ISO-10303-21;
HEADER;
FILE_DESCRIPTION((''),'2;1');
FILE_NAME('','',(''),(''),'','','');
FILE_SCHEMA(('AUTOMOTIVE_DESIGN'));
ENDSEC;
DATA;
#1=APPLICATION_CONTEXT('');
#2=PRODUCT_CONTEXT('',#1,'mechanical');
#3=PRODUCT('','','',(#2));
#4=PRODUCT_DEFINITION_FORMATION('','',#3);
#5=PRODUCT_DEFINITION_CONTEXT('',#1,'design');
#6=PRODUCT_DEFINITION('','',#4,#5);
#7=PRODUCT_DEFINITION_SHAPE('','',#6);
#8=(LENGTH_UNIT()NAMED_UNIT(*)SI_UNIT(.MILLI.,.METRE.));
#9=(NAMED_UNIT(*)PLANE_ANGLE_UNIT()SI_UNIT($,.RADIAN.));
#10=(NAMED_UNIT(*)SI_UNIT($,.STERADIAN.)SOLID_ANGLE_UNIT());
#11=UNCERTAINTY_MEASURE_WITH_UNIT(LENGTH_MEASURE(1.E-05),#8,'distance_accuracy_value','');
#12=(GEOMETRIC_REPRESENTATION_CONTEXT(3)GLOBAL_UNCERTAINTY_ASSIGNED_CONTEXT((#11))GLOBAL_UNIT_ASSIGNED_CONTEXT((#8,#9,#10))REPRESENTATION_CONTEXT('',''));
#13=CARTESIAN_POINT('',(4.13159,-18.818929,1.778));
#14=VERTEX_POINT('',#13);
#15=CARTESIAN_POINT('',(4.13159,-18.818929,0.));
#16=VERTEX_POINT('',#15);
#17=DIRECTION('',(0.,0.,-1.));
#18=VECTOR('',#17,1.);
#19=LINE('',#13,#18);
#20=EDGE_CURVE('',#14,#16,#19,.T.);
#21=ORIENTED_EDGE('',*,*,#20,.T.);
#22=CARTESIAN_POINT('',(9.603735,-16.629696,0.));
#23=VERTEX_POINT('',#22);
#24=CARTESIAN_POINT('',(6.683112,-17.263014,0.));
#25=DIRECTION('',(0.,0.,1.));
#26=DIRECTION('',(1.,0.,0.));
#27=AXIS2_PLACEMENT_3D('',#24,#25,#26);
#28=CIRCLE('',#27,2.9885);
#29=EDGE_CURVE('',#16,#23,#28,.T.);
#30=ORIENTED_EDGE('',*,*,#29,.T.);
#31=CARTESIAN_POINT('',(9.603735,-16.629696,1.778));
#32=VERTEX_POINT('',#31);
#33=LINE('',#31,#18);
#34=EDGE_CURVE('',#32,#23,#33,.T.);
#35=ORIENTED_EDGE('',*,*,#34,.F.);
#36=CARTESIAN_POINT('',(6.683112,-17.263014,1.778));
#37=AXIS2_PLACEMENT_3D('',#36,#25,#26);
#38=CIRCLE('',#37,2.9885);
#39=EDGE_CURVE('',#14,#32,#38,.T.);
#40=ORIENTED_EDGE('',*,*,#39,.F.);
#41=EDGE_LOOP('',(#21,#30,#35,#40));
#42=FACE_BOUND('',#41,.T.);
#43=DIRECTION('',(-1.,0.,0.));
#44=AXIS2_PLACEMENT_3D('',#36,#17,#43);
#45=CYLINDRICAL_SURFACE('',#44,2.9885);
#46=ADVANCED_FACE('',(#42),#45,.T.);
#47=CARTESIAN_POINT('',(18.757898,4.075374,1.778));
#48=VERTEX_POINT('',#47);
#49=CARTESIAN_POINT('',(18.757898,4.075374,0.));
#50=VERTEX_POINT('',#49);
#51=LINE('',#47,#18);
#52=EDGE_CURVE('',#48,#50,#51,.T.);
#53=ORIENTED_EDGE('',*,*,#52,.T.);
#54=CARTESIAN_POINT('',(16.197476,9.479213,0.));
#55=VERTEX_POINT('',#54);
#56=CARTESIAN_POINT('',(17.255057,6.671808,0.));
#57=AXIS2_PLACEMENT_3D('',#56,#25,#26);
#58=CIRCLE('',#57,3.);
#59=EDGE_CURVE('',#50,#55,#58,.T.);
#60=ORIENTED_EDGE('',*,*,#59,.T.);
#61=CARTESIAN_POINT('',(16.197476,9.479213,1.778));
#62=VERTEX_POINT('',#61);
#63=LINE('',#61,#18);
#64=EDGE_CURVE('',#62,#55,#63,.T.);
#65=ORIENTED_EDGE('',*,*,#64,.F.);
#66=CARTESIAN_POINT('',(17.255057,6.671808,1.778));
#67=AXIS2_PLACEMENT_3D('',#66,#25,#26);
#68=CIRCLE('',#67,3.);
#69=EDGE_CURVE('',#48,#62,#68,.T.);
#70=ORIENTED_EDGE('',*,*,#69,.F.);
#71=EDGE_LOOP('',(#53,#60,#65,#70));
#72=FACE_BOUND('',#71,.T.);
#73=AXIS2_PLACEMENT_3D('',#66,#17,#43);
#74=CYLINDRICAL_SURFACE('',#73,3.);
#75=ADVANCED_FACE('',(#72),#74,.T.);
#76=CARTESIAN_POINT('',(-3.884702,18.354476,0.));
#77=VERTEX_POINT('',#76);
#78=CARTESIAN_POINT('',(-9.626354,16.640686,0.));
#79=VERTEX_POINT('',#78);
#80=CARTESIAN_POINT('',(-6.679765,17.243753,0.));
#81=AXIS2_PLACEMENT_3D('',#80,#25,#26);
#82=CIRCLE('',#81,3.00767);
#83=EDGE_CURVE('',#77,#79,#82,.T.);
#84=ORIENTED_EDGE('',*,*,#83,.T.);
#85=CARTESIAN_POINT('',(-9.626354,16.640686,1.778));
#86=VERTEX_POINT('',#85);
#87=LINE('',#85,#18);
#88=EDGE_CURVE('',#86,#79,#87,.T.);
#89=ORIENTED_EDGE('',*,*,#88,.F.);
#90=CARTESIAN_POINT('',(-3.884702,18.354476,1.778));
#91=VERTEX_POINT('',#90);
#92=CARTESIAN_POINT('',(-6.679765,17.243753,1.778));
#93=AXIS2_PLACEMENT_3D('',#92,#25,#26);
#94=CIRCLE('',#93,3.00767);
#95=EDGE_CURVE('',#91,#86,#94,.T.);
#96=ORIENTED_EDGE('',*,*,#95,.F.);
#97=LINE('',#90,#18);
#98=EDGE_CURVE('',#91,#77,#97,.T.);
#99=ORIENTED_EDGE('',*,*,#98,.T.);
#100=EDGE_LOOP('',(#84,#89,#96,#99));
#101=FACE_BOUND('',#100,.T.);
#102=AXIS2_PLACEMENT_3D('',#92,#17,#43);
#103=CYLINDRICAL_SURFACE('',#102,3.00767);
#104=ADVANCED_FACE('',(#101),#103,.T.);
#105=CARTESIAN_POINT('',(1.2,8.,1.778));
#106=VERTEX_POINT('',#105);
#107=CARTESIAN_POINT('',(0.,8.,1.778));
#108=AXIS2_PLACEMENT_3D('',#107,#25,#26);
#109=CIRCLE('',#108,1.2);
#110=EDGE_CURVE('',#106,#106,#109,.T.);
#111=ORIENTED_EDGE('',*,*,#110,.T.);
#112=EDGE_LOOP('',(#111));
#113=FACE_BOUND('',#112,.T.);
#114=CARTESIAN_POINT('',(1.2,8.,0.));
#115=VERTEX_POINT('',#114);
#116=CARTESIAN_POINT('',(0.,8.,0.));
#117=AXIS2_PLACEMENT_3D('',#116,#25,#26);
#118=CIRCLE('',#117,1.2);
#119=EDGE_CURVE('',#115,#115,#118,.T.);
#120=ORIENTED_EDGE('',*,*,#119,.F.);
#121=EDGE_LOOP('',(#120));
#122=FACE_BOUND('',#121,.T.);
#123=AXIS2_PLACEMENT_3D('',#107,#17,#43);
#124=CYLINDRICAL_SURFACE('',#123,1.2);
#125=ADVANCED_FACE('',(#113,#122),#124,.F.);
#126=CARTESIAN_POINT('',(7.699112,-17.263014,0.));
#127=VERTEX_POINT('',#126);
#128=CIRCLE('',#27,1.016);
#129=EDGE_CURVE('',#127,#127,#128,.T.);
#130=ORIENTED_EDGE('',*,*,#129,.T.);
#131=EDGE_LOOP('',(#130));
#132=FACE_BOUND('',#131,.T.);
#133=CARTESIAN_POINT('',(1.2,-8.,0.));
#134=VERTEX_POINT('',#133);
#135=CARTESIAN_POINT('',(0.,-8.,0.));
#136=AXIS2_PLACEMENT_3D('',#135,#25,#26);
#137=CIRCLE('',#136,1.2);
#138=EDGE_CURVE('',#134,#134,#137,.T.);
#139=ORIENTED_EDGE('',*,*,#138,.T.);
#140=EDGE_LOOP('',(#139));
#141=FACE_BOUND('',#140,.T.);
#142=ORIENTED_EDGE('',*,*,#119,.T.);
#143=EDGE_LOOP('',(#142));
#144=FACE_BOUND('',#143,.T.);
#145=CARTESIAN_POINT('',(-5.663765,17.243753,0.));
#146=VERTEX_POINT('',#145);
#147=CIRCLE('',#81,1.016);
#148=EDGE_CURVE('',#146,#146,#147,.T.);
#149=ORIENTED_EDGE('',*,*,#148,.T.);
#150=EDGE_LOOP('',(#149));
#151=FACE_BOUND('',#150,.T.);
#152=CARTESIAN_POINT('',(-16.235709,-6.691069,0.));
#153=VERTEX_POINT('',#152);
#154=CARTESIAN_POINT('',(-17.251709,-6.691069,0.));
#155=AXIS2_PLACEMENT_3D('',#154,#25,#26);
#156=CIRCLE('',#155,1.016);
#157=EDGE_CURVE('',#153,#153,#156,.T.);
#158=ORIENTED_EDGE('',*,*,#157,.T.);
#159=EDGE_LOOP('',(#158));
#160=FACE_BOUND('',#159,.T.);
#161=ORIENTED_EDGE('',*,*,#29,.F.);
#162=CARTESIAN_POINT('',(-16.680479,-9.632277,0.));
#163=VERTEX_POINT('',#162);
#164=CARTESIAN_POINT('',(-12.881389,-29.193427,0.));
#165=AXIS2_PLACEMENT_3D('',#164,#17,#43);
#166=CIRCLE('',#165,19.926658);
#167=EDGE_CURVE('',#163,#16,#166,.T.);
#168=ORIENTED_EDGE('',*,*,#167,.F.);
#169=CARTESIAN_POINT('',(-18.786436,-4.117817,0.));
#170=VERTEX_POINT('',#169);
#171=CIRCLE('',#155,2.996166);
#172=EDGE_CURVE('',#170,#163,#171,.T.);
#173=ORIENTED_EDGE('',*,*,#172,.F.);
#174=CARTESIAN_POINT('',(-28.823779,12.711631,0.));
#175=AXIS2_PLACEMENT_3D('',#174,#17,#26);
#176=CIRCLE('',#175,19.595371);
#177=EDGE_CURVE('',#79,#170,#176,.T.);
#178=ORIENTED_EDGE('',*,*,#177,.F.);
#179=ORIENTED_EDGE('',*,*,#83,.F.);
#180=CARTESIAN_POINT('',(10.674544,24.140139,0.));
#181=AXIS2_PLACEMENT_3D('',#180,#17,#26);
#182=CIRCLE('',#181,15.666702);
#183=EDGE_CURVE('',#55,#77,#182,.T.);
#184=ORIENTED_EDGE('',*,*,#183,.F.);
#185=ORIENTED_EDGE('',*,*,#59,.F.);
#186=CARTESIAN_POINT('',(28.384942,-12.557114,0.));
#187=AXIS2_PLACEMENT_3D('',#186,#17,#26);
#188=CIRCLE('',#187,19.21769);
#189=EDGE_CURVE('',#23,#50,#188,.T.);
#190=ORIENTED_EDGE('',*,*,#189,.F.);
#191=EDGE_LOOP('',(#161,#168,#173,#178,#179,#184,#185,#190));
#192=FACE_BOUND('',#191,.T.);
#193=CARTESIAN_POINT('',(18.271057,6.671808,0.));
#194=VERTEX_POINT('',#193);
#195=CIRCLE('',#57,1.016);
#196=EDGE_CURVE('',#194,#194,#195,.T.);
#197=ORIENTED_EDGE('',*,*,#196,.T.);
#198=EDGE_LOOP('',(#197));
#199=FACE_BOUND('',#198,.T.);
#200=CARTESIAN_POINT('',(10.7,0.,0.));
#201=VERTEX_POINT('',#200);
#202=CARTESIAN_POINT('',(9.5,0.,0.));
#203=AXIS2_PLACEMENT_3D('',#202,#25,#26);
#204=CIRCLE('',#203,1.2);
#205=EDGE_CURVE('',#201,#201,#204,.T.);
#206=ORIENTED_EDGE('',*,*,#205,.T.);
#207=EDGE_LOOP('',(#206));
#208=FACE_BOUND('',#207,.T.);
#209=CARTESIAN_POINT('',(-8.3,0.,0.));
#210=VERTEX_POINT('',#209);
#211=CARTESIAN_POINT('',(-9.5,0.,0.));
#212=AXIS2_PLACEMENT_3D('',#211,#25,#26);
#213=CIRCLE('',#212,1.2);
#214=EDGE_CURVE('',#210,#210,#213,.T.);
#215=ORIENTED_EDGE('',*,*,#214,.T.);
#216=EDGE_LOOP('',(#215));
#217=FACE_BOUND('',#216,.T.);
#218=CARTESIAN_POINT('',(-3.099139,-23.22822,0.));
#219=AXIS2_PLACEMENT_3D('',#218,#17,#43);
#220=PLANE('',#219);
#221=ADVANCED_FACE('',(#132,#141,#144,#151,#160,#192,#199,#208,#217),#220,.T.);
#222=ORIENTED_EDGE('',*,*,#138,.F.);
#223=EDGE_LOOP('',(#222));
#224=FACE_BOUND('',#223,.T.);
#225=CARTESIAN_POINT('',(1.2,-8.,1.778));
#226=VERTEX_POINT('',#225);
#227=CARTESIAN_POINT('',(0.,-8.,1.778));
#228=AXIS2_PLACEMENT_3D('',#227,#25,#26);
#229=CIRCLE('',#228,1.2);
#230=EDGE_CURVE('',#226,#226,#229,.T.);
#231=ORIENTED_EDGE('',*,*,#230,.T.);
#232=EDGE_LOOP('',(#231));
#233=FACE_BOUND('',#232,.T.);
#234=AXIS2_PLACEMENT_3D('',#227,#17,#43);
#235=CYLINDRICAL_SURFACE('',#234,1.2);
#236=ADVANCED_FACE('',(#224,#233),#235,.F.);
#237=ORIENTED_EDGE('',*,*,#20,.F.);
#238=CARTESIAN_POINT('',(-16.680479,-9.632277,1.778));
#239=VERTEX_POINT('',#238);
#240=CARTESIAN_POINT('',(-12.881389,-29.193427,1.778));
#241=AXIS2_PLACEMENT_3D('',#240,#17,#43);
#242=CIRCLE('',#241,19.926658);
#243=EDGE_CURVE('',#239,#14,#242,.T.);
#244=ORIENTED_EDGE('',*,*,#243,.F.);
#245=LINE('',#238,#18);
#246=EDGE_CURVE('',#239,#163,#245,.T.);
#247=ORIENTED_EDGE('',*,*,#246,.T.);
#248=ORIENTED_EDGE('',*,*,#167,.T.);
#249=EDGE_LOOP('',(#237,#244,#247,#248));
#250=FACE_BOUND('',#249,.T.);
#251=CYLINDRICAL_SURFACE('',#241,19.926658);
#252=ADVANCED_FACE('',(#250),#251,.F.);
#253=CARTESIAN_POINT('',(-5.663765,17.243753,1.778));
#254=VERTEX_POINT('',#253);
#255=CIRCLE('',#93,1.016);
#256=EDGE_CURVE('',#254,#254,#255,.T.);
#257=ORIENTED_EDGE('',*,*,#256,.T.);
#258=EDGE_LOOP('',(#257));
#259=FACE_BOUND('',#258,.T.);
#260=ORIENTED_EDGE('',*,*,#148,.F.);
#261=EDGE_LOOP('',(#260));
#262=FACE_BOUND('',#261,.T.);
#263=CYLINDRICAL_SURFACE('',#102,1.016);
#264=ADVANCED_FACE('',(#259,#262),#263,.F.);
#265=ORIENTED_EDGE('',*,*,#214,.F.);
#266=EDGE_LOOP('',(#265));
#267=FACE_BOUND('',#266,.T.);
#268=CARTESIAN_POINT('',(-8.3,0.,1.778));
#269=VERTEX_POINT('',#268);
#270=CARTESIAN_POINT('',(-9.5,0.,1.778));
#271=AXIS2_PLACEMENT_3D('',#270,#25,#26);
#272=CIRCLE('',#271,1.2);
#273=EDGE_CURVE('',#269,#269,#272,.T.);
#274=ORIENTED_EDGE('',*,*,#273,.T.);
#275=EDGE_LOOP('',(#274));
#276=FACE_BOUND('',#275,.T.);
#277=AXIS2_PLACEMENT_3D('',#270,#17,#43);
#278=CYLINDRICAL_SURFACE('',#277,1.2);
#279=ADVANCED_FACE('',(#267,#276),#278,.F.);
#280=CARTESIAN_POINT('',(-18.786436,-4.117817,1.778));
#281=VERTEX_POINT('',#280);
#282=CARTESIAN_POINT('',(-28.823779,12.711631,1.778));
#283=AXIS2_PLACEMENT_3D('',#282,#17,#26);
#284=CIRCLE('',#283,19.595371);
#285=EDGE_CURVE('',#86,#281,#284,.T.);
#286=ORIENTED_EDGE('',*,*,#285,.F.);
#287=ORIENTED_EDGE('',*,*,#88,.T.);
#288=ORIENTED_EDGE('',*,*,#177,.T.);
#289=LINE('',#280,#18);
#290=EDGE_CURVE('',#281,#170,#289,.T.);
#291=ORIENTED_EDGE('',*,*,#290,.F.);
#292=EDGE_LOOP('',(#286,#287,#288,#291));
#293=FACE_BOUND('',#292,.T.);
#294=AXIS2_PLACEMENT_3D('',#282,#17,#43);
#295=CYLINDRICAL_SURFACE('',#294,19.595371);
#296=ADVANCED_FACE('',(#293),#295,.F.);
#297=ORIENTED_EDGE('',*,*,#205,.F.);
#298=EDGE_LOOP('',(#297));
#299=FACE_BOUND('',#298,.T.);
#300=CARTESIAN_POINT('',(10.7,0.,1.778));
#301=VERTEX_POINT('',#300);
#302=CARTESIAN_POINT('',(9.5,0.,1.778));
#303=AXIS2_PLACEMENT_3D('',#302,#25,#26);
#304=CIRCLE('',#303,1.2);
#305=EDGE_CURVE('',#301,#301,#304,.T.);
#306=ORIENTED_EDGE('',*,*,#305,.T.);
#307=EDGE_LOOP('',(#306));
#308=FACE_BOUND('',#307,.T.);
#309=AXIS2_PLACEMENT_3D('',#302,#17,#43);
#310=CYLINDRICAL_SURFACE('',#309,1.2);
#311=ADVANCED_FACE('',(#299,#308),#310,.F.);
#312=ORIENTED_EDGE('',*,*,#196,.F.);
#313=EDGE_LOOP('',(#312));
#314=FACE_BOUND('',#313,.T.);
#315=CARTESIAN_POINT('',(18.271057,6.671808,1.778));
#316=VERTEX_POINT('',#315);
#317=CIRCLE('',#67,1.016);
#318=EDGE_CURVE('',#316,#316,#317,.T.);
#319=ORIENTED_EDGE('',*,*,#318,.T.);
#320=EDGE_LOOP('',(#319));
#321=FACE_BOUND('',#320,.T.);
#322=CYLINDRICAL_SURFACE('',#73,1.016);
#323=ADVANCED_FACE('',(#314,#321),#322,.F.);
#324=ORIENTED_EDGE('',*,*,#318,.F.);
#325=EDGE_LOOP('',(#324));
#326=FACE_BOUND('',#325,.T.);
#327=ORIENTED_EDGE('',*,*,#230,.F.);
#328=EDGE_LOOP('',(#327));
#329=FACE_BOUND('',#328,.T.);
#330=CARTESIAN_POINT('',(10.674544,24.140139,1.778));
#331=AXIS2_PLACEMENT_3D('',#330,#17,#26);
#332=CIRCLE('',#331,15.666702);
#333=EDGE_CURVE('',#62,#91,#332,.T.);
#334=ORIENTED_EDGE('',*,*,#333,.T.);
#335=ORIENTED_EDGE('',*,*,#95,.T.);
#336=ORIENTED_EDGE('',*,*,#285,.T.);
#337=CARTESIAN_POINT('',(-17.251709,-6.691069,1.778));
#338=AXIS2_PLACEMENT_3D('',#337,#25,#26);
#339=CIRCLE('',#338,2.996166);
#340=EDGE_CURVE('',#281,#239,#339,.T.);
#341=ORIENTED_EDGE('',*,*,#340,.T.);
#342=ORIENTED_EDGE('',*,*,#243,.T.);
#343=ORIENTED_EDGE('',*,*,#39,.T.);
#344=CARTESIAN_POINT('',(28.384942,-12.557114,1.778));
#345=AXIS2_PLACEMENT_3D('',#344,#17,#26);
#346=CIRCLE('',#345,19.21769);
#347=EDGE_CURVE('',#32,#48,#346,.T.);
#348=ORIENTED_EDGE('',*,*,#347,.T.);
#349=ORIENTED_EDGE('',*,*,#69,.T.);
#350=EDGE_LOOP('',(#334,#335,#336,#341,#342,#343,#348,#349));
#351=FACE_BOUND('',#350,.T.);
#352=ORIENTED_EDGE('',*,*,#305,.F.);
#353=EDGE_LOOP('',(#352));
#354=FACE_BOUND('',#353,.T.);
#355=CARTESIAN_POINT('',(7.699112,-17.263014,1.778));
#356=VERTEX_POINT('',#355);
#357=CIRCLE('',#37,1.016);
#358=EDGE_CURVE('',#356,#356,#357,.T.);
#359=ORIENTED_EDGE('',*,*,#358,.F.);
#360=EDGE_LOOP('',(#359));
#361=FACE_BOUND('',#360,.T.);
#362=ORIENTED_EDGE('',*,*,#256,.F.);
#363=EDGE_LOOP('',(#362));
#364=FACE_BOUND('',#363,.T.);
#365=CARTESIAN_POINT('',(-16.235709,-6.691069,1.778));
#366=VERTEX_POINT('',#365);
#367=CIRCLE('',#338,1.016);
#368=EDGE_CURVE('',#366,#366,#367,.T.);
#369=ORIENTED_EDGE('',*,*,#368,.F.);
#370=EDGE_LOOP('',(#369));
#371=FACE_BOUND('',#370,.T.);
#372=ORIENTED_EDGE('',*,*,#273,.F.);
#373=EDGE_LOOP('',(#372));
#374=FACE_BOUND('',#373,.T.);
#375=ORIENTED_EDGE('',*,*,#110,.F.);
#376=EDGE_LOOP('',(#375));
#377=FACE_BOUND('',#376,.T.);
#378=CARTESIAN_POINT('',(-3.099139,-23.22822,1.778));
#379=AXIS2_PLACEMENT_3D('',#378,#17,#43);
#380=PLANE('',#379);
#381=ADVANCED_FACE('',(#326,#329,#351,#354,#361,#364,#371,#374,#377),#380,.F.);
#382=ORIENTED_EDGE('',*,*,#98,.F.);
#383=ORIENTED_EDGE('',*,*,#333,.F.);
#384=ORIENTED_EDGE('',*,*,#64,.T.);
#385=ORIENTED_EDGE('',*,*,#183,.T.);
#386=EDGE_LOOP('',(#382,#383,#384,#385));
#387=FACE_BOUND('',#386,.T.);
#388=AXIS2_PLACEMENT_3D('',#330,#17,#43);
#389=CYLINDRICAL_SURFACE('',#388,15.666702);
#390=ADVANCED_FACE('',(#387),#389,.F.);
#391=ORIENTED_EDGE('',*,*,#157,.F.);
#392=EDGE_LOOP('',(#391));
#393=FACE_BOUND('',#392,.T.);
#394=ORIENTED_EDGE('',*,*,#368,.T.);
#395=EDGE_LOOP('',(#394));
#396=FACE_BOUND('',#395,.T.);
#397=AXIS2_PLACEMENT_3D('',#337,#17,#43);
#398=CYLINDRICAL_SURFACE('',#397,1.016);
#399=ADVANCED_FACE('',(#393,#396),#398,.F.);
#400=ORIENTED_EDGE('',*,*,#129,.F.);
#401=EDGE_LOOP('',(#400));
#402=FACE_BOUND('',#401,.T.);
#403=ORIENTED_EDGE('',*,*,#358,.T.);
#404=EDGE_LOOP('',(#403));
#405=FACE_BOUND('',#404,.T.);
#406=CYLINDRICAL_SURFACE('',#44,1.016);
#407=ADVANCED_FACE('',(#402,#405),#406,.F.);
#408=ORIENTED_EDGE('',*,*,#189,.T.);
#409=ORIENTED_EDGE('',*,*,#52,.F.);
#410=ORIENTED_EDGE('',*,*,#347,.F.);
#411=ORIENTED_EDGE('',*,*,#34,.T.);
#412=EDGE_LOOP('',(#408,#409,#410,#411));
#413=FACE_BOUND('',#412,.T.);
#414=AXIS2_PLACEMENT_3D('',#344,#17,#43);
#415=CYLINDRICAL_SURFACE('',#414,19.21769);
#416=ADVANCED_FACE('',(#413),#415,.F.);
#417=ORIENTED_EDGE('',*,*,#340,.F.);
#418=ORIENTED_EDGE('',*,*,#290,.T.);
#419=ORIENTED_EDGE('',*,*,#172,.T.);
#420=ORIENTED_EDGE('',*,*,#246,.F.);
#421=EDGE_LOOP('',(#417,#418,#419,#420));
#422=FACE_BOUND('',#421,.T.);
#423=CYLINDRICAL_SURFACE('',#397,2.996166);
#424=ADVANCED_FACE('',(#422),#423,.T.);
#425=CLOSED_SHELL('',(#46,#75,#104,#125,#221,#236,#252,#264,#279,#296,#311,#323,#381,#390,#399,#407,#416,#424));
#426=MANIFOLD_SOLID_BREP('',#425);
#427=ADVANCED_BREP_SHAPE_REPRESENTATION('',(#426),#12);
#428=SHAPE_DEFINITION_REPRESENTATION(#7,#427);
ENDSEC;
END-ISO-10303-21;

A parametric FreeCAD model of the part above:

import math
import FreeCAD as App
import Part
import Sketcher

V = App.Vector
Q = App.Units.Quantity

doc = App.newDocument("Part")
body = doc.addObject("PartDesign::Body", "Body")

# Sketch on XY plane
sketch1 = body.newObject("Sketcher::SketchObject", "Sketch")
sketch1.AttachmentSupport = (doc.getObject("XY_Plane"), [""])
sketch1.MapMode = "FlatFace"
sketch1.addGeometry([
    Part.ArcOfCircle(Part.Circle(V(-17.3, -6.7, 0), V(0, 0, 1), 3), math.radians(121), math.radians(281)),  # 0
    Part.ArcOfCircle(Part.Circle(V(-12.9, -29.2, 0), V(0, 0, 1), 19.9), math.radians(31), math.radians(101)),  # 1
    Part.ArcOfCircle(Part.Circle(V(6.7, -17.3, 0), V(0, 0, 1), 3), math.radians(-149), math.radians(12)),  # 2
    Part.ArcOfCircle(Part.Circle(V(28.4, -12.6, 0), V(0, 0, 1), 19.2), math.radians(120), math.radians(192)),  # 3
    Part.ArcOfCircle(Part.Circle(V(17.3, 6.7, 0), V(0, 0, 1), 3), math.radians(-60), math.radians(111)),  # 4
    Part.ArcOfCircle(Part.Circle(V(10.7, 24.1, 0), V(0, 0, 1), 15.7), math.radians(-158), math.radians(-69)),  # 5
    Part.ArcOfCircle(Part.Circle(V(-6.7, 17.2, 0), V(0, 0, 1), 3), math.radians(22), math.radians(192)),  # 6
    Part.ArcOfCircle(Part.Circle(V(-28.8, 12.7, 0), V(0, 0, 1), 19.6), math.radians(-59), math.radians(12)),  # 7
    Part.Circle(V(-17.3, -6.7, 0), V(0, 0, 1), 1),  # 8
    Part.Circle(V(0, -8, 0), V(0, 0, 1), 1.2),  # 9
    Part.Circle(V(6.7, -17.3, 0), V(0, 0, 1), 1),  # 10
    Part.Circle(V(-9.5, 0, 0), V(0, 0, 1), 1.2),  # 11
    Part.Circle(V(0, 8, 0), V(0, 0, 1), 1.2),  # 12
    Part.Circle(V(-6.7, 17.2, 0), V(0, 0, 1), 1),  # 13
    Part.Circle(V(9.5, 0, 0), V(0, 0, 1), 1.2),  # 14
    Part.Circle(V(17.3, 6.7, 0), V(0, 0, 1), 1),  # 15
], False)
sketch1.addConstraint([
    Sketcher.Constraint("Tangent", 0, 2, 1, 2),
    Sketcher.Constraint("Tangent", 1, 1, 2, 1),
    Sketcher.Constraint("Tangent", 2, 2, 3, 2),
    Sketcher.Constraint("Tangent", 3, 1, 4, 1),
    Sketcher.Constraint("Tangent", 4, 2, 5, 2),
    Sketcher.Constraint("Tangent", 5, 1, 6, 1),
    Sketcher.Constraint("Tangent", 6, 2, 7, 2),
    Sketcher.Constraint("Tangent", 7, 1, 0, 1),
    Sketcher.Constraint("Coincident", 8, 3, 0, 3),
    Sketcher.Constraint("Coincident", 10, 3, 2, 3),
    Sketcher.Constraint("Coincident", 13, 3, 6, 3),
    Sketcher.Constraint("Coincident", 15, 3, 4, 3),
    Sketcher.Constraint("Equal", 8, 10),
    Sketcher.Constraint("Equal", 9, 11),
    Sketcher.Constraint("Equal", 11, 12),
    Sketcher.Constraint("Equal", 10, 13),
    Sketcher.Constraint("Equal", 12, 14),
    Sketcher.Constraint("Equal", 13, 15),
    Sketcher.Constraint("Symmetric", 9, 3, 12, 3, -1, 1),
    Sketcher.Constraint("Symmetric", 11, 3, 14, 3, -1, 1),
    Sketcher.Constraint("PointOnObject", 9, 3, -2),
    Sketcher.Constraint("PointOnObject", 11, 3, -1),
    Sketcher.Constraint("Radius", 4, Q("3 mm")),
    Sketcher.Constraint("Diameter", 9, Q("2.4 mm")),
    Sketcher.Constraint("Diameter", 8, Q("2.032 mm")),
    Sketcher.Constraint("DistanceY", 9, 3, -1, 1, Q("8 mm")),
    Sketcher.Constraint("DistanceX", 11, 3, -1, 1, Q("9.5 mm")),
    Sketcher.Constraint("Radius", 2, Q("2.9885 mm")),
    Sketcher.Constraint("Radius", 5, Q("15.666702 mm")),
    Sketcher.Constraint("Radius", 3, Q("19.21769 mm")),
    Sketcher.Constraint("Radius", 6, Q("3.00767 mm")),
    Sketcher.Constraint("Radius", 7, Q("19.595371 mm")),
    Sketcher.Constraint("Radius", 0, Q("2.996166 mm")),
    Sketcher.Constraint("Radius", 1, Q("19.926658 mm")),
    Sketcher.Constraint("DistanceX", 5, 1, -1, 1, Q("3.884702 mm")),
    Sketcher.Constraint("DistanceX", 1, 3, 2, 3, Q("19.564501 mm")),
    Sketcher.Constraint("DistanceY", 2, 3, 3, 3, Q("4.705899 mm")),
    Sketcher.Constraint("DistanceY", 0, 3, 7, 3, Q("19.4027 mm")),
    Sketcher.Constraint("DistanceX", 0, 3, -1, 1, Q("17.251709 mm")),
    Sketcher.Constraint("DistanceY", 0, 3, -1, 1, Q("6.691069 mm")),
    Sketcher.Constraint("DistanceX", 1, 3, -1, 1, Q("12.881389 mm")),
    Sketcher.Constraint("DistanceY", -1, 1, 5, 3, Q("24.140139 mm")),
])
pad1 = body.newObject("PartDesign::Pad", "Pad")
pad1.Profile = sketch1
pad1.Length = 1.778

doc.recompute()
